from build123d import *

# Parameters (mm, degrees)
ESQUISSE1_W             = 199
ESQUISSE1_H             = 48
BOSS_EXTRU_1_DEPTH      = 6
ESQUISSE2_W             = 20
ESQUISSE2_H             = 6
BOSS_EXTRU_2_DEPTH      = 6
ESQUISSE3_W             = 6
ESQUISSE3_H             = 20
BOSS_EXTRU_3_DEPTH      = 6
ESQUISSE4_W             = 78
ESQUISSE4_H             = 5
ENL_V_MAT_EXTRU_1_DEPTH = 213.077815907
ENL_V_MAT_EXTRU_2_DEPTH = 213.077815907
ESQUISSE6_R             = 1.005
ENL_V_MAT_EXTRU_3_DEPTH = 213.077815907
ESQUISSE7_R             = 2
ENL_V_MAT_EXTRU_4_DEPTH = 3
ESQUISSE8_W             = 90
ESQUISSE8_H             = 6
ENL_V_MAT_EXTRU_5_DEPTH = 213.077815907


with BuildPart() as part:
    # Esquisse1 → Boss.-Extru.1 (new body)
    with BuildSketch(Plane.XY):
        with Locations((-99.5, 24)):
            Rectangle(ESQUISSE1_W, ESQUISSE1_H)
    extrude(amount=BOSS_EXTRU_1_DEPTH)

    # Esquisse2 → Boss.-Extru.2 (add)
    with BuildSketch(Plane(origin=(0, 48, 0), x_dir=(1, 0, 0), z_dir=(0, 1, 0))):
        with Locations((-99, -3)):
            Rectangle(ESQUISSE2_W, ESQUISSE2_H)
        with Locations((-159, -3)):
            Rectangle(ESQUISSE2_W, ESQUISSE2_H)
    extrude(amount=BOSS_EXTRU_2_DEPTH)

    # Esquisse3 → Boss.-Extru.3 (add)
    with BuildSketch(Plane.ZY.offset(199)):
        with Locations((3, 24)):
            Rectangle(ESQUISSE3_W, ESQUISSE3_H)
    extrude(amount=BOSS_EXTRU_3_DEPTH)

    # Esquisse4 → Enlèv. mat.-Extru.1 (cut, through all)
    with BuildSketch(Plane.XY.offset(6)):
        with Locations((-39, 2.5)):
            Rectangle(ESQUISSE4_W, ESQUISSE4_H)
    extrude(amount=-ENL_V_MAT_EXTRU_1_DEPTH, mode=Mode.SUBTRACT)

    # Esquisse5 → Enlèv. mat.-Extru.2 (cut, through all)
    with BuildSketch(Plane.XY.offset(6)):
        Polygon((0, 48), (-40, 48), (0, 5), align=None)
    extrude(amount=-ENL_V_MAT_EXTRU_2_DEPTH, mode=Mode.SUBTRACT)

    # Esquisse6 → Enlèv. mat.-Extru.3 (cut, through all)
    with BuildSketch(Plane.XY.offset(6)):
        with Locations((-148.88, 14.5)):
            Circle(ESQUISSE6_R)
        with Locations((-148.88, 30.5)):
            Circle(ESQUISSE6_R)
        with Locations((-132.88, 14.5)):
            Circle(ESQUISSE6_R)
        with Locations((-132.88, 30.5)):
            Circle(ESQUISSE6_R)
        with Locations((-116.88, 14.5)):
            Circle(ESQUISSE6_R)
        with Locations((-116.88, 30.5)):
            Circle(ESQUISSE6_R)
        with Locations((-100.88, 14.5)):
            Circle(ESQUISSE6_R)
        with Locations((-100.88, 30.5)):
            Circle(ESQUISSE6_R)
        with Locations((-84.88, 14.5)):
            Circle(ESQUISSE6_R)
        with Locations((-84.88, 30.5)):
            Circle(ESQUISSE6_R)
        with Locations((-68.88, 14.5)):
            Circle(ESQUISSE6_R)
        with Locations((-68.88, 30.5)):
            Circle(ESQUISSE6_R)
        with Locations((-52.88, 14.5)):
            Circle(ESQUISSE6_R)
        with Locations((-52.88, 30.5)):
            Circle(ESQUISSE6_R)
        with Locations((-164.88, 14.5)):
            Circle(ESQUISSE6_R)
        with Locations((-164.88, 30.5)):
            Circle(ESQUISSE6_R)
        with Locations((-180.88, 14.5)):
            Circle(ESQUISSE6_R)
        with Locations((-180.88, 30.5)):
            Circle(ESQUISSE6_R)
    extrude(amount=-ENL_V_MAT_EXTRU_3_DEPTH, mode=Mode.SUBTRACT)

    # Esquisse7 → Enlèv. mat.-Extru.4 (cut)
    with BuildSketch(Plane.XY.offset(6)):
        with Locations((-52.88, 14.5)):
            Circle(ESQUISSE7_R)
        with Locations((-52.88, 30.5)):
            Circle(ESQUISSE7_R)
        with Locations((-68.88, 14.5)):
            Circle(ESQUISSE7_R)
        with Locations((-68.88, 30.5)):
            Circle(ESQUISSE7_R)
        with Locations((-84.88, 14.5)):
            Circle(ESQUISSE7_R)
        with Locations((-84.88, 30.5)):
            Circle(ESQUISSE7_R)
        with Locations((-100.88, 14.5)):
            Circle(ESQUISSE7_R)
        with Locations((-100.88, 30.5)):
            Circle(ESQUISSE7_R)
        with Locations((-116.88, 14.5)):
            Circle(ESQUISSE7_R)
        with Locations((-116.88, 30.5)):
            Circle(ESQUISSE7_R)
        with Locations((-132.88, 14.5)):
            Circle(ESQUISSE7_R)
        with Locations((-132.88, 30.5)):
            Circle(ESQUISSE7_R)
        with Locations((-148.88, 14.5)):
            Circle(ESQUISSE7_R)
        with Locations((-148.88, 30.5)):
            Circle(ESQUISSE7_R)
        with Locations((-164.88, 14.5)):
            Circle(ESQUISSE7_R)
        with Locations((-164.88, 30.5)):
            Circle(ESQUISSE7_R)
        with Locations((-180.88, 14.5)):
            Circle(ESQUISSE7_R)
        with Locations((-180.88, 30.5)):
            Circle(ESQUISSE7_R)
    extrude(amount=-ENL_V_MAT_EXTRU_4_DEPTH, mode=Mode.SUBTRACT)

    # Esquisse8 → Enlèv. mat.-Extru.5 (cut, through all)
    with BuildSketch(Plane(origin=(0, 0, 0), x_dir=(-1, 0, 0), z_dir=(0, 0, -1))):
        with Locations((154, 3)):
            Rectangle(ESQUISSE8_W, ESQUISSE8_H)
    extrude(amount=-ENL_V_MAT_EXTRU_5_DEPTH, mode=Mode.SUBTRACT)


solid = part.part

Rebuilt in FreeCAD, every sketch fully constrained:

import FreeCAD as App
import Part
import Sketcher
Q = App.Units.Quantity


def add_polygon(sketch, points):
    """Adds a closed chain of lines whose ends are joined by coincident constraints."""
    first, n = sketch.GeometryCount, len(points)
    for a, b in zip(points, points[1:] + points[:1]):
        sketch.addGeometry(Part.LineSegment(App.Vector(*a, 0), App.Vector(*b, 0)), False)
    for i in range(n):
        sketch.addConstraint(Sketcher.Constraint("Coincident", first + i, 2, first + (i + 1) % n, 1))

doc = App.newDocument("Part")
body = doc.addObject("PartDesign::Body", "Body")

sketch1 = body.newObject("Sketcher::SketchObject", "Sketch")
sketch1.AttachmentSupport = (doc.getObject("XY_Plane"), [""])
sketch1.MapMode = "FlatFace"
add_polygon(sketch1, [(-199, 48), (-199, 0), (0, 0), (0, 48)])
sketch1.addConstraint(Sketcher.Constraint("Vertical", 0))
sketch1.addConstraint(Sketcher.Constraint("Horizontal", 1))
sketch1.addConstraint(Sketcher.Constraint("Vertical", 2))
sketch1.addConstraint(Sketcher.Constraint("Horizontal", 3))
sketch1.addConstraint(Sketcher.Constraint("Coincident", 1, 2, -1, 1))
sketch1.addConstraint(Sketcher.Constraint("DistanceX", 1, 1, 1, 2, Q("199 mm")))
sketch1.addConstraint(Sketcher.Constraint("DistanceY", 0, 2, 0, 1, Q("48 mm")))
pad1 = body.newObject("PartDesign::Pad", "Pad")
pad1.Profile = sketch1
pad1.Length = 6

sketch2 = body.newObject("Sketcher::SketchObject", "Sketch001")
sketch2.AttachmentSupport = (doc.getObject("XZ_Plane"), [""])
sketch2.MapMode = "FlatFace"
sketch2.AttachmentOffset = App.Placement(App.Vector(0, 0, -48), App.Rotation())
add_polygon(sketch2, [(-109, 0), (-109, 6), (-89, 6), (-89, 0)])
add_polygon(sketch2, [(-169, 0), (-169, 6), (-149, 6), (-149, 0)])
sketch2.addConstraint(Sketcher.Constraint("Vertical", 0))
sketch2.addConstraint(Sketcher.Constraint("Horizontal", 1))
sketch2.addConstraint(Sketcher.Constraint("Vertical", 2))
sketch2.addConstraint(Sketcher.Constraint("Horizontal", 3))
sketch2.addConstraint(Sketcher.Constraint("Vertical", 4))
sketch2.addConstraint(Sketcher.Constraint("Horizontal", 5))
sketch2.addConstraint(Sketcher.Constraint("Vertical", 6))
sketch2.addConstraint(Sketcher.Constraint("Horizontal", 7))
sketch2.addConstraint(Sketcher.Constraint("PointOnObject", 2, 2, -1))
sketch2.addConstraint(Sketcher.Constraint("PointOnObject", 6, 2, -1))
sketch2.addConstraint(Sketcher.Constraint("Horizontal", 1, 2, 4, 2))
sketch2.addConstraint(Sketcher.Constraint("Equal", 3, 5))
sketch2.addConstraint(Sketcher.Constraint("DistanceX", 1, 1, 1, 2, Q("20 mm")))
sketch2.addConstraint(Sketcher.Constraint("DistanceY", 0, 1, 0, 2, Q("6 mm")))
sketch2.addConstraint(Sketcher.Constraint("DistanceX", 0, 2, -1, 1, Q("109 mm")))
sketch2.addConstraint(Sketcher.Constraint("DistanceX", 4, 2, -1, 1, Q("169 mm")))
pad2 = body.newObject("PartDesign::Pad", "Pad001")
pad2.Profile = sketch2
pad2.Length = 6
pad2.Reversed = True

sketch3 = body.newObject("Sketcher::SketchObject", "Sketch002")
sketch3.AttachmentSupport = (doc.getObject("YZ_Plane"), [""])
sketch3.MapMode = "FlatFace"
sketch3.AttachmentOffset = App.Placement(App.Vector(0, 0, -199), App.Rotation())
add_polygon(sketch3, [(34, 0), (14, 0), (14, 6), (34, 6)])
sketch3.addConstraint(Sketcher.Constraint("Horizontal", 0))
sketch3.addConstraint(Sketcher.Constraint("Vertical", 1))
sketch3.addConstraint(Sketcher.Constraint("Horizontal", 2))
sketch3.addConstraint(Sketcher.Constraint("Vertical", 3))
sketch3.addConstraint(Sketcher.Constraint("PointOnObject", 0, 2, -1))
sketch3.addConstraint(Sketcher.Constraint("DistanceX", 0, 2, 0, 1, Q("20 mm")))
sketch3.addConstraint(Sketcher.Constraint("DistanceY", 1, 1, 1, 2, Q("6 mm")))
sketch3.addConstraint(Sketcher.Constraint("DistanceX", -1, 1, 0, 2, Q("14 mm")))
pad3 = body.newObject("PartDesign::Pad", "Pad002")
pad3.Profile = sketch3
pad3.Length = 6
pad3.Reversed = True

sketch4 = body.newObject("Sketcher::SketchObject", "Sketch003")
sketch4.AttachmentSupport = (doc.getObject("XY_Plane"), [""])
sketch4.MapMode = "FlatFace"
sketch4.AttachmentOffset = App.Placement(App.Vector(0, 0, 6), App.Rotation())
add_polygon(sketch4, [(-78, 5), (-78, 0), (0, 0), (0, 5)])
sketch4.addConstraint(Sketcher.Constraint("Vertical", 0))
sketch4.addConstraint(Sketcher.Constraint("Horizontal", 1))
sketch4.addConstraint(Sketcher.Constraint("Vertical", 2))
sketch4.addConstraint(Sketcher.Constraint("Horizontal", 3))
sketch4.addConstraint(Sketcher.Constraint("Coincident", 1, 2, -1, 1))
sketch4.addConstraint(Sketcher.Constraint("DistanceX", 1, 1, 1, 2, Q("78 mm")))
sketch4.addConstraint(Sketcher.Constraint("DistanceY", 0, 2, 0, 1, Q("5 mm")))
pocket1 = body.newObject("PartDesign::Pocket", "Pocket")
pocket1.Profile = sketch4
pocket1.Type = "ThroughAll"

sketch5 = body.newObject("Sketcher::SketchObject", "Sketch004")
sketch5.AttachmentSupport = (doc.getObject("XY_Plane"), [""])
sketch5.MapMode = "FlatFace"
sketch5.AttachmentOffset = App.Placement(App.Vector(0, 0, 6), App.Rotation())
add_polygon(sketch5, [(0, 48), (-40, 48), (0, 5)])
sketch5.addConstraint(Sketcher.Constraint("Horizontal", 0))
sketch5.addConstraint(Sketcher.Constraint("Vertical", 2))
sketch5.addConstraint(Sketcher.Constraint("PointOnObject", 1, 2, -2))
sketch5.addConstraint(Sketcher.Constraint("DistanceX", 0, 2, 0, 1, Q("40 mm")))
sketch5.addConstraint(Sketcher.Constraint("DistanceY", 2, 1, 2, 2, Q("43 mm")))
sketch5.addConstraint(Sketcher.Constraint("DistanceY", -1, 1, 0, 2, Q("48 mm")))
pocket2 = body.newObject("PartDesign::Pocket", "Pocket001")
pocket2.Profile = sketch5
pocket2.Type = "ThroughAll"

sketch6 = body.newObject("Sketcher::SketchObject", "Sketch005")
sketch6.AttachmentSupport = (doc.getObject("XY_Plane"), [""])
sketch6.MapMode = "FlatFace"
sketch6.AttachmentOffset = App.Placement(App.Vector(0, 0, 6), App.Rotation())
sketch6.addGeometry(Part.Circle(App.Vector(-148.9, 14.5, 0), App.Vector(0, 0, 1), 1), False)
sketch6.addGeometry(Part.Circle(App.Vector(-148.9, 30.5, 0), App.Vector(0, 0, 1), 1), False)
sketch6.addGeometry(Part.Circle(App.Vector(-132.9, 14.5, 0), App.Vector(0, 0, 1), 1), False)
sketch6.addGeometry(Part.Circle(App.Vector(-132.9, 30.5, 0), App.Vector(0, 0, 1), 1), False)
sketch6.addGeometry(Part.Circle(App.Vector(-116.9, 14.5, 0), App.Vector(0, 0, 1), 1), False)
sketch6.addGeometry(Part.Circle(App.Vector(-116.9, 30.5, 0), App.Vector(0, 0, 1), 1), False)
sketch6.addGeometry(Part.Circle(App.Vector(-100.9, 14.5, 0), App.Vector(0, 0, 1), 1), False)
sketch6.addGeometry(Part.Circle(App.Vector(-100.9, 30.5, 0), App.Vector(0, 0, 1), 1), False)
sketch6.addGeometry(Part.Circle(App.Vector(-84.9, 14.5, 0), App.Vector(0, 0, 1), 1), False)
sketch6.addGeometry(Part.Circle(App.Vector(-84.9, 30.5, 0), App.Vector(0, 0, 1), 1), False)
sketch6.addGeometry(Part.Circle(App.Vector(-68.9, 14.5, 0), App.Vector(0, 0, 1), 1), False)
sketch6.addGeometry(Part.Circle(App.Vector(-68.9, 30.5, 0), App.Vector(0, 0, 1), 1), False)
sketch6.addGeometry(Part.Circle(App.Vector(-52.9, 14.5, 0), App.Vector(0, 0, 1), 1), False)
sketch6.addGeometry(Part.Circle(App.Vector(-52.9, 30.5, 0), App.Vector(0, 0, 1), 1), False)
sketch6.addGeometry(Part.Circle(App.Vector(-164.9, 14.5, 0), App.Vector(0, 0, 1), 1), False)
sketch6.addGeometry(Part.Circle(App.Vector(-164.9, 30.5, 0), App.Vector(0, 0, 1), 1), False)
sketch6.addGeometry(Part.Circle(App.Vector(-180.9, 14.5, 0), App.Vector(0, 0, 1), 1), False)
sketch6.addGeometry(Part.Circle(App.Vector(-180.9, 30.5, 0), App.Vector(0, 0, 1), 1), False)
sketch6.addConstraint(Sketcher.Constraint("Equal", 0, 1))
sketch6.addConstraint(Sketcher.Constraint("Equal", 1, 2))
sketch6.addConstraint(Sketcher.Constraint("Equal", 2, 3))
sketch6.addConstraint(Sketcher.Constraint("Equal", 3, 4))
sketch6.addConstraint(Sketcher.Constraint("Equal", 4, 5))
sketch6.addConstraint(Sketcher.Constraint("Equal", 5, 6))
sketch6.addConstraint(Sketcher.Constraint("Equal", 6, 7))
sketch6.addConstraint(Sketcher.Constraint("Equal", 7, 8))
sketch6.addConstraint(Sketcher.Constraint("Equal", 8, 9))
sketch6.addConstraint(Sketcher.Constraint("Equal", 9, 10))
sketch6.addConstraint(Sketcher.Constraint("Equal", 10, 11))
sketch6.addConstraint(Sketcher.Constraint("Equal", 11, 12))
sketch6.addConstraint(Sketcher.Constraint("Equal", 12, 13))
sketch6.addConstraint(Sketcher.Constraint("Equal", 13, 14))
sketch6.addConstraint(Sketcher.Constraint("Equal", 14, 15))
sketch6.addConstraint(Sketcher.Constraint("Equal", 15, 16))
sketch6.addConstraint(Sketcher.Constraint("Equal", 16, 17))
sketch6.addConstraint(Sketcher.Constraint("Horizontal", 0, 3, 2, 3))
sketch6.addConstraint(Sketcher.Constraint("Horizontal", 1, 3, 3, 3))
sketch6.addConstraint(Sketcher.Constraint("Horizontal", 2, 3, 4, 3))
sketch6.addConstraint(Sketcher.Constraint("Horizontal", 3, 3, 5, 3))
sketch6.addConstraint(Sketcher.Constraint("Horizontal", 4, 3, 6, 3))
sketch6.addConstraint(Sketcher.Constraint("Horizontal", 5, 3, 7, 3))
sketch6.addConstraint(Sketcher.Constraint("Horizontal", 6, 3, 8, 3))
sketch6.addConstraint(Sketcher.Constraint("Horizontal", 7, 3, 9, 3))
sketch6.addConstraint(Sketcher.Constraint("Horizontal", 8, 3, 10, 3))
sketch6.addConstraint(Sketcher.Constraint("Horizontal", 9, 3, 11, 3))
sketch6.addConstraint(Sketcher.Constraint("Horizontal", 10, 3, 12, 3))
sketch6.addConstraint(Sketcher.Constraint("Horizontal", 11, 3, 13, 3))
sketch6.addConstraint(Sketcher.Constraint("Horizontal", 12, 3, 14, 3))
sketch6.addConstraint(Sketcher.Constraint("Horizontal", 13, 3, 15, 3))
sketch6.addConstraint(Sketcher.Constraint("Horizontal", 14, 3, 16, 3))
sketch6.addConstraint(Sketcher.Constraint("Horizontal", 15, 3, 17, 3))
sketch6.addConstraint(Sketcher.Constraint("Vertical", 0, 3, 1, 3))
sketch6.addConstraint(Sketcher.Constraint("Vertical", 2, 3, 3, 3))
sketch6.addConstraint(Sketcher.Constraint("Vertical", 4, 3, 5, 3))
sketch6.addConstraint(Sketcher.Constraint("Vertical", 6, 3, 7, 3))
sketch6.addConstraint(Sketcher.Constraint("Vertical", 8, 3, 9, 3))
sketch6.addConstraint(Sketcher.Constraint("Vertical", 10, 3, 11, 3))
sketch6.addConstraint(Sketcher.Constraint("Vertical", 12, 3, 13, 3))
sketch6.addConstraint(Sketcher.Constraint("Vertical", 14, 3, 15, 3))
sketch6.addConstraint(Sketcher.Constraint("Vertical", 16, 3, 17, 3))
sketch6.addConstraint(Sketcher.Constraint("Diameter", 0, Q("2.01 mm")))
sketch6.addConstraint(Sketcher.Constraint("DistanceY", 0, 3, 1, 3, Q("16 mm")))
sketch6.addConstraint(Sketcher.Constraint("DistanceX", 0, 3, 2, 3, Q("16 mm")))
sketch6.addConstraint(Sketcher.Constraint("DistanceX", 2, 3, 4, 3, Q("16 mm")))
sketch6.addConstraint(Sketcher.Constraint("DistanceX", 4, 3, 6, 3, Q("16 mm")))
sketch6.addConstraint(Sketcher.Constraint("DistanceX", 6, 3, 8, 3, Q("16 mm")))
sketch6.addConstraint(Sketcher.Constraint("DistanceX", 8, 3, 10, 3, Q("16 mm")))
sketch6.addConstraint(Sketcher.Constraint("DistanceX", 10, 3, 12, 3, Q("16 mm")))
sketch6.addConstraint(Sketcher.Constraint("DistanceX", 14, 3, 0, 3, Q("16 mm")))
sketch6.addConstraint(Sketcher.Constraint("DistanceX", 16, 3, 14, 3, Q("16 mm")))
sketch6.addConstraint(Sketcher.Constraint("DistanceY", -1, 1, 0, 3, Q("14.5 mm")))
sketch6.addConstraint(Sketcher.Constraint("DistanceX", 0, 3, -1, 1, Q("148.88 mm")))
pocket3 = body.newObject("PartDesign::Pocket", "Pocket002")
pocket3.Profile = sketch6
pocket3.Type = "ThroughAll"

sketch7 = body.newObject("Sketcher::SketchObject", "Sketch006")
sketch7.AttachmentSupport = (doc.getObject("XY_Plane"), [""])
sketch7.MapMode = "FlatFace"
sketch7.AttachmentOffset = App.Placement(App.Vector(0, 0, 6), App.Rotation())
sketch7.addGeometry(Part.Circle(App.Vector(-52.9, 14.5, 0), App.Vector(0, 0, 1), 2), False)
sketch7.addGeometry(Part.Circle(App.Vector(-52.9, 30.5, 0), App.Vector(0, 0, 1), 2), False)
sketch7.addGeometry(Part.Circle(App.Vector(-68.9, 14.5, 0), App.Vector(0, 0, 1), 2), False)
sketch7.addGeometry(Part.Circle(App.Vector(-68.9, 30.5, 0), App.Vector(0, 0, 1), 2), False)
sketch7.addGeometry(Part.Circle(App.Vector(-84.9, 14.5, 0), App.Vector(0, 0, 1), 2), False)
sketch7.addGeometry(Part.Circle(App.Vector(-84.9, 30.5, 0), App.Vector(0, 0, 1), 2), False)
sketch7.addGeometry(Part.Circle(App.Vector(-100.9, 14.5, 0), App.Vector(0, 0, 1), 2), False)
sketch7.addGeometry(Part.Circle(App.Vector(-100.9, 30.5, 0), App.Vector(0, 0, 1), 2), False)
sketch7.addGeometry(Part.Circle(App.Vector(-116.9, 14.5, 0), App.Vector(0, 0, 1), 2), False)
sketch7.addGeometry(Part.Circle(App.Vector(-116.9, 30.5, 0), App.Vector(0, 0, 1), 2), False)
sketch7.addGeometry(Part.Circle(App.Vector(-132.9, 14.5, 0), App.Vector(0, 0, 1), 2), False)
sketch7.addGeometry(Part.Circle(App.Vector(-132.9, 30.5, 0), App.Vector(0, 0, 1), 2), False)
sketch7.addGeometry(Part.Circle(App.Vector(-148.9, 14.5, 0), App.Vector(0, 0, 1), 2), False)
sketch7.addGeometry(Part.Circle(App.Vector(-148.9, 30.5, 0), App.Vector(0, 0, 1), 2), False)
sketch7.addGeometry(Part.Circle(App.Vector(-164.9, 14.5, 0), App.Vector(0, 0, 1), 2), False)
sketch7.addGeometry(Part.Circle(App.Vector(-164.9, 30.5, 0), App.Vector(0, 0, 1), 2), False)
sketch7.addGeometry(Part.Circle(App.Vector(-180.9, 14.5, 0), App.Vector(0, 0, 1), 2), False)
sketch7.addGeometry(Part.Circle(App.Vector(-180.9, 30.5, 0), App.Vector(0, 0, 1), 2), False)
sketch7.addConstraint(Sketcher.Constraint("Equal", 0, 1))
sketch7.addConstraint(Sketcher.Constraint("Equal", 1, 2))
sketch7.addConstraint(Sketcher.Constraint("Equal", 2, 3))
sketch7.addConstraint(Sketcher.Constraint("Equal", 3, 4))
sketch7.addConstraint(Sketcher.Constraint("Equal", 4, 5))
sketch7.addConstraint(Sketcher.Constraint("Equal", 5, 6))
sketch7.addConstraint(Sketcher.Constraint("Equal", 6, 7))
sketch7.addConstraint(Sketcher.Constraint("Equal", 7, 8))
sketch7.addConstraint(Sketcher.Constraint("Equal", 8, 9))
sketch7.addConstraint(Sketcher.Constraint("Equal", 9, 10))
sketch7.addConstraint(Sketcher.Constraint("Equal", 10, 11))
sketch7.addConstraint(Sketcher.Constraint("Equal", 11, 12))
sketch7.addConstraint(Sketcher.Constraint("Equal", 12, 13))
sketch7.addConstraint(Sketcher.Constraint("Equal", 13, 14))
sketch7.addConstraint(Sketcher.Constraint("Equal", 14, 15))
sketch7.addConstraint(Sketcher.Constraint("Equal", 15, 16))
sketch7.addConstraint(Sketcher.Constraint("Equal", 16, 17))
sketch7.addConstraint(Sketcher.Constraint("Horizontal", 0, 3, 2, 3))
sketch7.addConstraint(Sketcher.Constraint("Horizontal", 1, 3, 3, 3))
sketch7.addConstraint(Sketcher.Constraint("Horizontal", 2, 3, 4, 3))
sketch7.addConstraint(Sketcher.Constraint("Horizontal", 3, 3, 5, 3))
sketch7.addConstraint(Sketcher.Constraint("Horizontal", 4, 3, 6, 3))
sketch7.addConstraint(Sketcher.Constraint("Horizontal", 5, 3, 7, 3))
sketch7.addConstraint(Sketcher.Constraint("Horizontal", 6, 3, 8, 3))
sketch7.addConstraint(Sketcher.Constraint("Horizontal", 7, 3, 9, 3))
sketch7.addConstraint(Sketcher.Constraint("Horizontal", 8, 3, 10, 3))
sketch7.addConstraint(Sketcher.Constraint("Horizontal", 9, 3, 11, 3))
sketch7.addConstraint(Sketcher.Constraint("Horizontal", 10, 3, 12, 3))
sketch7.addConstraint(Sketcher.Constraint("Horizontal", 11, 3, 13, 3))
sketch7.addConstraint(Sketcher.Constraint("Horizontal", 12, 3, 14, 3))
sketch7.addConstraint(Sketcher.Constraint("Horizontal", 13, 3, 15, 3))
sketch7.addConstraint(Sketcher.Constraint("Horizontal", 14, 3, 16, 3))
sketch7.addConstraint(Sketcher.Constraint("Horizontal", 15, 3, 17, 3))
sketch7.addConstraint(Sketcher.Constraint("Vertical", 0, 3, 1, 3))
sketch7.addConstraint(Sketcher.Constraint("Vertical", 2, 3, 3, 3))
sketch7.addConstraint(Sketcher.Constraint("Vertical", 4, 3, 5, 3))
sketch7.addConstraint(Sketcher.Constraint("Vertical", 6, 3, 7, 3))
sketch7.addConstraint(Sketcher.Constraint("Vertical", 8, 3, 9, 3))
sketch7.addConstraint(Sketcher.Constraint("Vertical", 10, 3, 11, 3))
sketch7.addConstraint(Sketcher.Constraint("Vertical", 12, 3, 13, 3))
sketch7.addConstraint(Sketcher.Constraint("Vertical", 14, 3, 15, 3))
sketch7.addConstraint(Sketcher.Constraint("Vertical", 16, 3, 17, 3))
sketch7.addConstraint(Sketcher.Constraint("Diameter", 0, Q("4 mm")))
sketch7.addConstraint(Sketcher.Constraint("DistanceY", 0, 3, 1, 3, Q("16 mm")))
sketch7.addConstraint(Sketcher.Constraint("DistanceX", 2, 3, 0, 3, Q("16 mm")))
sketch7.addConstraint(Sketcher.Constraint("DistanceX", 4, 3, 2, 3, Q("16 mm")))
sketch7.addConstraint(Sketcher.Constraint("DistanceX", 6, 3, 4, 3, Q("16 mm")))
sketch7.addConstraint(Sketcher.Constraint("DistanceX", 8, 3, 6, 3, Q("16 mm")))
sketch7.addConstraint(Sketcher.Constraint("DistanceX", 10, 3, 8, 3, Q("16 mm")))
sketch7.addConstraint(Sketcher.Constraint("DistanceX", 12, 3, 10, 3, Q("16 mm")))
sketch7.addConstraint(Sketcher.Constraint("DistanceX", 14, 3, 12, 3, Q("16 mm")))
sketch7.addConstraint(Sketcher.Constraint("DistanceX", 16, 3, 14, 3, Q("16 mm")))
sketch7.addConstraint(Sketcher.Constraint("DistanceY", -1, 1, 0, 3, Q("14.5 mm")))
sketch7.addConstraint(Sketcher.Constraint("DistanceX", 0, 3, -1, 1, Q("52.88 mm")))
pocket4 = body.newObject("PartDesign::Pocket", "Pocket003")
pocket4.Profile = sketch7
pocket4.Length = 3

sketch8 = body.newObject("Sketcher::SketchObject", "Sketch007")
sketch8.AttachmentSupport = (doc.getObject("XY_Plane"), [""])
sketch8.MapMode = "FlatFace"
add_polygon(sketch8, [(-109, 6), (-109, 0), (-199, 0), (-199, 6)])
sketch8.addConstraint(Sketcher.Constraint("Vertical", 0))
sketch8.addConstraint(Sketcher.Constraint("Horizontal", 1))
sketch8.addConstraint(Sketcher.Constraint("Vertical", 2))
sketch8.addConstraint(Sketcher.Constraint("Horizontal", 3))
sketch8.addConstraint(Sketcher.Constraint("PointOnObject", 0, 2, -1))
sketch8.addConstraint(Sketcher.Constraint("DistanceX", 1, 2, 1, 1, Q("90 mm")))
sketch8.addConstraint(Sketcher.Constraint("DistanceY", 0, 2, 0, 1, Q("6 mm")))
sketch8.addConstraint(Sketcher.Constraint("DistanceX", 0, 2, -1, 1, Q("109 mm")))
pocket5 = body.newObject("PartDesign::Pocket", "Pocket004")
pocket5.Profile = sketch8
pocket5.Type = "ThroughAll"
pocket5.Reversed = True

doc.recompute()
